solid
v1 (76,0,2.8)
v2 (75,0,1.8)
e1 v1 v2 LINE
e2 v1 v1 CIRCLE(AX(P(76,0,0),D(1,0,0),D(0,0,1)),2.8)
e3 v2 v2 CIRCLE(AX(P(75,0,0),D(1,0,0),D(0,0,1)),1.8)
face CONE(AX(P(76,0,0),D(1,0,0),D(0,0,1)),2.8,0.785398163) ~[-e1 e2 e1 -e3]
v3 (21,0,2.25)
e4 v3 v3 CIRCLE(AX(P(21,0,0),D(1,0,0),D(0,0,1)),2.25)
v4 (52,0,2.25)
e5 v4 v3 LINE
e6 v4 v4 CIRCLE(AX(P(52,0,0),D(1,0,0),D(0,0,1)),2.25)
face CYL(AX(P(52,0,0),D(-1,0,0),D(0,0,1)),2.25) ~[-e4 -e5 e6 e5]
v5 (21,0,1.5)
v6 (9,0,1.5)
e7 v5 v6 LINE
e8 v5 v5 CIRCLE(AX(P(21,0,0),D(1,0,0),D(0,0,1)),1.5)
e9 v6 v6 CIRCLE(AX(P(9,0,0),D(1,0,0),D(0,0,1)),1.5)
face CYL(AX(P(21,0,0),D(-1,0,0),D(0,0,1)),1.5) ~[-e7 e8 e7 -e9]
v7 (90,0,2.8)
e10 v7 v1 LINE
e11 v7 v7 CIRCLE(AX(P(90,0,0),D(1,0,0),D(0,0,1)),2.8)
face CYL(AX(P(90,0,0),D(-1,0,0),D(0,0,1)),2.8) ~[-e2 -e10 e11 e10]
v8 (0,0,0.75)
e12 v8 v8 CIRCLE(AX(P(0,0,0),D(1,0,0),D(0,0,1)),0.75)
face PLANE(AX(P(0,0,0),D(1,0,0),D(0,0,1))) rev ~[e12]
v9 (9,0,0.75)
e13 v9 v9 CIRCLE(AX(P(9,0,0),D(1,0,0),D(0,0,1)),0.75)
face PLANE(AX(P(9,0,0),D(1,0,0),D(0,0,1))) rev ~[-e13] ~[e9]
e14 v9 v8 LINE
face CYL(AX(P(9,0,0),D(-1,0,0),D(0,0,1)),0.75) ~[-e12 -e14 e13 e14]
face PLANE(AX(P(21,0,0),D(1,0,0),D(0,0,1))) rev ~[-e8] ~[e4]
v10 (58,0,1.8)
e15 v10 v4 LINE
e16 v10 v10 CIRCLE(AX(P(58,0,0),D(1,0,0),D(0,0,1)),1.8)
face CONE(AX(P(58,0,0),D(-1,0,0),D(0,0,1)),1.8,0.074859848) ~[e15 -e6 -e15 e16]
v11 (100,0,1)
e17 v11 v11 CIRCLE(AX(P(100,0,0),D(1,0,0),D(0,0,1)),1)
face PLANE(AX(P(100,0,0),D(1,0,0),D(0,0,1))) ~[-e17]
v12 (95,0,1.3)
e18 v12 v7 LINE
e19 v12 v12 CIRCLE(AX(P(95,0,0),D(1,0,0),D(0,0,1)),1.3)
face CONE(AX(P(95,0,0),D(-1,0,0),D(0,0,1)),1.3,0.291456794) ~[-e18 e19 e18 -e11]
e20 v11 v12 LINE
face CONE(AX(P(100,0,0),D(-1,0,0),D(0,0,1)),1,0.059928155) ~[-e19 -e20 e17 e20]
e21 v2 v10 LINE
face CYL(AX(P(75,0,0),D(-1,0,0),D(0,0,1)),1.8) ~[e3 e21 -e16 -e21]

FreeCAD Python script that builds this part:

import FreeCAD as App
import Part
import Sketcher
from FreeCAD import Vector
Q = App.Units.Quantity

doc = App.newDocument("Part")
body = doc.addObject("PartDesign::Body", "Body")

sketch1 = body.newObject("Sketcher::SketchObject", "Sketch")
sketch1.AttachmentSupport = (doc.getObject("XZ_Plane"), [""])
sketch1.MapMode = "FlatFace"
sketch1.addGeometry([
    Part.LineSegment(Vector(0, 0, 0), Vector(100, 0, 0)),
    Part.LineSegment(Vector(100, 0, 0), Vector(100, 1, 0)),
    Part.LineSegment(Vector(100, 1, 0), Vector(95, 1.3, 0)),
    Part.LineSegment(Vector(95, 1.3, 0), Vector(90, 2.8, 0)),
    Part.LineSegment(Vector(90, 2.8, 0), Vector(76, 2.8, 0)),
    Part.LineSegment(Vector(76, 2.8, 0), Vector(75, 1.8, 0)),
    Part.LineSegment(Vector(75, 1.8, 0), Vector(58, 1.8, 0)),
    Part.LineSegment(Vector(58, 1.8, 0), Vector(52, 2.2, 0)),
    Part.LineSegment(Vector(52, 2.2, 0), Vector(21, 2.2, 0)),
    Part.LineSegment(Vector(21, 2.2, 0), Vector(21, 1.5, 0)),
    Part.LineSegment(Vector(21, 1.5, 0), Vector(9, 1.5, 0)),
    Part.LineSegment(Vector(9, 1.5, 0), Vector(9, 0.8, 0)),
    Part.LineSegment(Vector(9, 0.8, 0), Vector(0, 0.8, 0)),
    Part.LineSegment(Vector(0, 0.8, 0), Vector(0, 0, 0)),
], False)
sketch1.addConstraint([
    Sketcher.Constraint("Coincident", 0, 2, 1, 1),
    Sketcher.Constraint("Coincident", 1, 2, 2, 1),
    Sketcher.Constraint("Coincident", 2, 2, 3, 1),
    Sketcher.Constraint("Coincident", 3, 2, 4, 1),
    Sketcher.Constraint("Coincident", 4, 2, 5, 1),
    Sketcher.Constraint("Coincident", 5, 2, 6, 1),
    Sketcher.Constraint("Coincident", 6, 2, 7, 1),
    Sketcher.Constraint("Coincident", 7, 2, 8, 1),
    Sketcher.Constraint("Coincident", 8, 2, 9, 1),
    Sketcher.Constraint("Coincident", 9, 2, 10, 1),
    Sketcher.Constraint("Coincident", 10, 2, 11, 1),
    Sketcher.Constraint("Coincident", 11, 2, 12, 1),
    Sketcher.Constraint("Coincident", 12, 2, 13, 1),
    Sketcher.Constraint("Coincident", 13, 2, 0, 1),
    Sketcher.Constraint("Horizontal", 0),
    Sketcher.Constraint("Vertical", 1),
    Sketcher.Constraint("Horizontal", 4),
    Sketcher.Constraint("Horizontal", 6),
    Sketcher.Constraint("Horizontal", 8),
    Sketcher.Constraint("Vertical", 9),
    Sketcher.Constraint("Horizontal", 10),
    Sketcher.Constraint("Vertical", 11),
    Sketcher.Constraint("Horizontal", 12),
    Sketcher.Constraint("Vertical", 13),
    Sketcher.Constraint("Coincident", 13, 2, -1, 1),
    Sketcher.Constraint("Equal", 9, 11),
    Sketcher.Constraint("Equal", 11, 13),
    Sketcher.Constraint("DistanceX", 0, 1, 0, 2, 100.0),
    Sketcher.Constraint("DistanceX", 4, 2, 4, 1, 14.0),
    Sketcher.Constraint("DistanceX", 6, 2, 6, 1, 17.0),
    Sketcher.Constraint("DistanceX", 8, 2, 8, 1, 31.0),
    Sketcher.Constraint("DistanceX", 10, 2, 10, 1, 12.0),
    Sketcher.Constraint("DistanceX", 12, 2, 12, 1, 9.0),
    Sketcher.Constraint("DistanceY", 1, 1, 1, 2, 1.0),
    Sketcher.Constraint("Angle", 5, Q("-135 deg")),
    Sketcher.Constraint("DistanceX", -1, 1, 2, 2, 95.0),
    Sketcher.Constraint("DistanceX", -1, 1, 3, 2, 90.0),
    Sketcher.Constraint("DistanceX", -1, 1, 5, 2, 75.0),
    Sketcher.Constraint("DistanceY", 9, 2, 9, 1, 0.75),
    Sketcher.Constraint("DistanceY", -1, 1, 2, 2, 1.3),
    Sketcher.Constraint("DistanceY", -1, 1, 3, 2, 2.8),
])
revolution = body.newObject("PartDesign::Revolution", "Revolution")
revolution.Profile = sketch1
revolution.ReferenceAxis = (sketch1, ["H_Axis"])
revolution.Angle = 360

doc.recompute()
